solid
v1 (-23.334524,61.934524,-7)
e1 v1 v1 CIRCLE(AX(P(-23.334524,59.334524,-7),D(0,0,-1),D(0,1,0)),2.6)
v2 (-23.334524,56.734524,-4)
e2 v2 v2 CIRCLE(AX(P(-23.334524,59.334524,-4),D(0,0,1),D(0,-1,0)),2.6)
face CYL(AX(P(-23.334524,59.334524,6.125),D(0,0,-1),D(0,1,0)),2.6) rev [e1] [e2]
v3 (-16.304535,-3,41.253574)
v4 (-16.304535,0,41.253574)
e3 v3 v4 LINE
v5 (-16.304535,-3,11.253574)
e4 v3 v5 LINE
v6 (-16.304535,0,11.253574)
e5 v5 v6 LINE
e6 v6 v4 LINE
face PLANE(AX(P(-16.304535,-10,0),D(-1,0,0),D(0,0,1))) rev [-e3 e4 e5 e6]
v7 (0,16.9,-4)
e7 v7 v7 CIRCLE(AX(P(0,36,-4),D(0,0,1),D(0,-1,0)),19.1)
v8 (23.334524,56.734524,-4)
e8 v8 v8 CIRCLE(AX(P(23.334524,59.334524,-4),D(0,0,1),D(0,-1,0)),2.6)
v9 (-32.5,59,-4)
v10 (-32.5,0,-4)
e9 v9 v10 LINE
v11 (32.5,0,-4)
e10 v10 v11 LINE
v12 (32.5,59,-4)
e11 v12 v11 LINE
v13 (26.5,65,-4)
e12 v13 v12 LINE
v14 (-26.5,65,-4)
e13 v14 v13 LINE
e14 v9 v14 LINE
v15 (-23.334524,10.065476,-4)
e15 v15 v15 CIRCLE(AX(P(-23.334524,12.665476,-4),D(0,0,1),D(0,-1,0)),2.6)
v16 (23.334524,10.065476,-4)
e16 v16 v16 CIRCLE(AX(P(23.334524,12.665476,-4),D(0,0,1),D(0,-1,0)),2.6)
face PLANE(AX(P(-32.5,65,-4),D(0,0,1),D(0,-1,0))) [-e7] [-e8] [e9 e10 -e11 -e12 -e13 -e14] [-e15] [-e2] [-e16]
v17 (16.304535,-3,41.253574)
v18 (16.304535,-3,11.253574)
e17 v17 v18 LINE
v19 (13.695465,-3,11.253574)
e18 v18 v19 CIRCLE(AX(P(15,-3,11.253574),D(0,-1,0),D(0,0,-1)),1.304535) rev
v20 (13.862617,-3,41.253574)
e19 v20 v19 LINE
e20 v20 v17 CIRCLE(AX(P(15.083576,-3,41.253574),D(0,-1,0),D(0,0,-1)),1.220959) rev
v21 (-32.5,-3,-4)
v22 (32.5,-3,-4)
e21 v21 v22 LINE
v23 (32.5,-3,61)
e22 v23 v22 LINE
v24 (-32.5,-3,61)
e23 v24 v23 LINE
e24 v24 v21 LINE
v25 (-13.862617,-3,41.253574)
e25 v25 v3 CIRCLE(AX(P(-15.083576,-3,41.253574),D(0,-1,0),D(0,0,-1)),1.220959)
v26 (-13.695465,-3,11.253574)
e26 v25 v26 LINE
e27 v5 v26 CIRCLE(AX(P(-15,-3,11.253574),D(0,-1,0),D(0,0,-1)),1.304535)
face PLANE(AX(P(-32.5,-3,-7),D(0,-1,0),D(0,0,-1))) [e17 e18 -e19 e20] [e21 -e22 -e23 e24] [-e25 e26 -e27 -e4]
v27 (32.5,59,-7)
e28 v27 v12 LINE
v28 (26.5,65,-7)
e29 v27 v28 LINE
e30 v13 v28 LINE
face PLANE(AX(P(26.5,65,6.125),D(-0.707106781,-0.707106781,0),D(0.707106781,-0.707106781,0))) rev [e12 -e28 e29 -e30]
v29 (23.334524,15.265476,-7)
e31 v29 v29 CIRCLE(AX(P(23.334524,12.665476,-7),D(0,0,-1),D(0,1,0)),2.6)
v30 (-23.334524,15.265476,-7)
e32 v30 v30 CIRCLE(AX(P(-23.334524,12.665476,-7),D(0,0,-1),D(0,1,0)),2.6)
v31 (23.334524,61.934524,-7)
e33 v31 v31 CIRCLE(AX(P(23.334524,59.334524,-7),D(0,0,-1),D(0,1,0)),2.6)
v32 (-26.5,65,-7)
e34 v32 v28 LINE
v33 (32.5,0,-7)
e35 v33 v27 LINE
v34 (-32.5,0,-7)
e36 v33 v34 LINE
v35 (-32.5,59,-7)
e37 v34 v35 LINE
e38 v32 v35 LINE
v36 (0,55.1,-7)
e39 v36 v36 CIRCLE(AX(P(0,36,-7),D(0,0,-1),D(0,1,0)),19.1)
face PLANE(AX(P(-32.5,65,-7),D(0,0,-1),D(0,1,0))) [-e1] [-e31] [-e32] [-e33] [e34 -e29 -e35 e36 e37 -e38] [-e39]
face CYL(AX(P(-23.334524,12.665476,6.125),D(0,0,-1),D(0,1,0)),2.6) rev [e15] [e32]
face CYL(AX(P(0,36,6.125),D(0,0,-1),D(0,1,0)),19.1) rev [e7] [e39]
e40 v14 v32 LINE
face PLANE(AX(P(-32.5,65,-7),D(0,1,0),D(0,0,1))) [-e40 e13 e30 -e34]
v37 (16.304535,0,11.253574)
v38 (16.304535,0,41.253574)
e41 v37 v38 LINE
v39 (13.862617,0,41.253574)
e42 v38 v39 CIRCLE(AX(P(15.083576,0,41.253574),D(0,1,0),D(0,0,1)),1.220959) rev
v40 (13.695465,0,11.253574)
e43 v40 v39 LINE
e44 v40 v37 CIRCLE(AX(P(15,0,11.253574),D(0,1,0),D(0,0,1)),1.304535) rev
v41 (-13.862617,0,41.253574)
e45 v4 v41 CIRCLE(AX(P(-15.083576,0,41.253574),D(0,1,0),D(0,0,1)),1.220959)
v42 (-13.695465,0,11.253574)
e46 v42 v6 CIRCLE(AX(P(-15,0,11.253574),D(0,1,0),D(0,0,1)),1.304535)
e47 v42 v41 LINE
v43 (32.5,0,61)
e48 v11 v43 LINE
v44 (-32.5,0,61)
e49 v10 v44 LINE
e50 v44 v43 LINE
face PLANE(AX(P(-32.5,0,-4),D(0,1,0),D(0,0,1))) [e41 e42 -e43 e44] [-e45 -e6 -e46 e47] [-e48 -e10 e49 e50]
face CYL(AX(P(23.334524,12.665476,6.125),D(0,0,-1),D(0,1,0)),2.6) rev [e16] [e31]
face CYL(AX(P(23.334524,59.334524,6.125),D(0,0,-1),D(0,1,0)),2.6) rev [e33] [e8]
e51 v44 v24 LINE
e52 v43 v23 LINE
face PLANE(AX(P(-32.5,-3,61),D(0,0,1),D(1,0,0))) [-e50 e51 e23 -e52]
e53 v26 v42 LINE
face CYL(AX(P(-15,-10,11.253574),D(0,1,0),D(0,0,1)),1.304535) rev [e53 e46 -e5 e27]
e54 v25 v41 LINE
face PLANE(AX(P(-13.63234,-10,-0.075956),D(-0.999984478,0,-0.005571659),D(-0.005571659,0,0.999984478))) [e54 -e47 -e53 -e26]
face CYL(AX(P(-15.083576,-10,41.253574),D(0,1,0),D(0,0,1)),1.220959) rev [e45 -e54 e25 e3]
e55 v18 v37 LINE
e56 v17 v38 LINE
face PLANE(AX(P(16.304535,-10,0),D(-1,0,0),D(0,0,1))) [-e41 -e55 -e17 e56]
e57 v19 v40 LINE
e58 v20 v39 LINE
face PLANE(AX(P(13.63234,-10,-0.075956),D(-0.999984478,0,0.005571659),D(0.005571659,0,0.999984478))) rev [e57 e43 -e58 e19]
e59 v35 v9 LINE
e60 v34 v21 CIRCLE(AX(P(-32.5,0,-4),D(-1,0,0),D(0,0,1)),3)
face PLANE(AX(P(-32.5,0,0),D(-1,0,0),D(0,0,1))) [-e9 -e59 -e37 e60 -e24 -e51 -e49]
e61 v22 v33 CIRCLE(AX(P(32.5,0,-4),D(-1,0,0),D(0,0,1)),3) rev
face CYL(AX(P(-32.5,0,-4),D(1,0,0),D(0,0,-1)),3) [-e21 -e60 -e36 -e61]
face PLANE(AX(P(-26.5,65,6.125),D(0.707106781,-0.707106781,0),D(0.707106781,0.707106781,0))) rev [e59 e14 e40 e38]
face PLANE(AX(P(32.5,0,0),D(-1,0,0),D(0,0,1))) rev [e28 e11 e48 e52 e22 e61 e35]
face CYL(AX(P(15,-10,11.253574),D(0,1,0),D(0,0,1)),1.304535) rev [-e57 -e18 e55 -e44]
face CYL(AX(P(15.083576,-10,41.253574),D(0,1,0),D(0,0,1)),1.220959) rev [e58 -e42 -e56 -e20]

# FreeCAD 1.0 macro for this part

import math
import FreeCAD as App
import Part
import Sketcher
from FreeCAD import Vector
Q = App.Units.Quantity


def edges_at(feature, points):
    """Names of the edges that pass closest to the given points."""
    edges = feature.Shape.Edges
    near = lambda p: min(range(len(edges)), key=lambda i: edges[i].distToShape(Part.Vertex(*p))[0])
    return sorted({f"Edge{near(p) + 1}" for p in points})


def add_polygon(sketch, points):
    """Adds a closed chain of lines whose ends are joined by coincident constraints."""
    first, n = sketch.GeometryCount, len(points)
    for a, b in zip(points, points[1:] + points[:1]):
        sketch.addGeometry(Part.LineSegment(App.Vector(*a, 0), App.Vector(*b, 0)), False)
    for i in range(n):
        sketch.addConstraint(Sketcher.Constraint("Coincident", first + i, 2, first + (i + 1) % n, 1))

doc = App.newDocument("Part")
params = doc.addObject("Spreadsheet::Sheet", "Params")
for row, (alias, value) in enumerate([
    ("sketch1_width", "68 mm"),
    ("sketch1_width2", "65 mm"),
    ("pad1_length", "32.5 mm"),
    ("pad1_length2", "32.5 mm"),
    ("fillet_radius", "3 mm"),
    ("sketch2_diameter", "38.2 mm"),
    ("sketch2_diameter2", "5.2 mm"),
    ("sketch2_width", "6 mm"),
    ("pocket1_length", "13.125 mm"),
    ("sketch3_height", "30 mm"),
    ("pocket2_length", "10 mm"),
], start=1):
    params.set(f"A{row}", alias)
    params.set(f"B{row}", "=" + value)
    params.setAlias(f"B{row}", alias)

body = doc.addObject("PartDesign::Body", "Body")

sketch1 = body.newObject("Sketcher::SketchObject", "Sketch")
sketch1.AttachmentSupport = (doc.getObject("YZ_Plane"), [""])
sketch1.MapMode = "FlatFace"
add_polygon(sketch1, [(-3, -7), (65, -7), (65, -4), (0, -4), (0, 61), (-3, 61)])
sketch1.addConstraint([
    Sketcher.Constraint("Horizontal", 0),
    Sketcher.Constraint("Vertical", 1),
    Sketcher.Constraint("Horizontal", 2),
    Sketcher.Constraint("Vertical", 3),
    Sketcher.Constraint("Horizontal", 4),
    Sketcher.Constraint("Vertical", 5),
    Sketcher.Constraint("PointOnObject", 2, 2, -2),
    Sketcher.Constraint("Equal", 4, 1),
    Sketcher.Constraint("Equal", 2, 3),
    Sketcher.Constraint("DistanceX", 0, 1, 0, 2, Q("68 mm")),
    Sketcher.Constraint("DistanceX", 2, 2, 2, 1, Q("65 mm")),
    Sketcher.Constraint("DistanceY", 0, 2, -1, 1, Q("7 mm")),
])
sketch1.setExpression("Constraints[15]", "Params.sketch1_width")
sketch1.setExpression("Constraints[16]", "Params.sketch1_width2")
pad1 = body.newObject("PartDesign::Pad", "Pad")
pad1.Profile = sketch1
pad1.Type = "TwoLengths"
pad1.setExpression("Length", "Params.pad1_length")
pad1.setExpression("Length2", "Params.pad1_length2")
doc.recompute()

fillet = body.newObject("PartDesign::Fillet", "Fillet")
fillet.Base = (pad1, edges_at(pad1, [(0, -3, -7)]))
fillet.setExpression("Radius", "Params.fillet_radius")

sketch2 = body.newObject("Sketcher::SketchObject", "Sketch001")
sketch2.AttachmentSupport = (doc.getObject("XY_Plane"), [""])
sketch2.MapMode = "FlatFace"
sketch2.AttachmentOffset = App.Placement(Vector(0, 0, -7), App.Rotation())
sketch2.addGeometry(Part.Circle(Vector(0, 36, 0), Vector(0, 0, 1), 19.1), False)
sketch2.addGeometry(Part.Circle(Vector(23.334524, 59.334524, 0), Vector(0, 0, 1), 2.6), False)
sketch2.addGeometry(Part.Circle(Vector(-23.334524, 59.334524, 0), Vector(0, 0, 1), 2.6), False)
sketch2.addGeometry(Part.Circle(Vector(-23.334524, 12.665476, 0), Vector(0, 0, 1), 2.6), False)
sketch2.addGeometry(Part.Circle(Vector(23.334524, 12.665476, 0), Vector(0, 0, 1), 2.6), False)
add_polygon(sketch2, [(32.5, 59), (26.5, 65), (32.5, 65)])
add_polygon(sketch2, [(-32.5, 59), (-32.5, 65), (-26.5, 65)])
sketch2.addConstraint([
    Sketcher.Constraint("Horizontal", 6),
    Sketcher.Constraint("Vertical", 7),
    Sketcher.Constraint("Vertical", 8),
    Sketcher.Constraint("Horizontal", 9),
    Sketcher.Constraint("Equal", 1, 2),
    Sketcher.Constraint("Equal", 2, 3),
    Sketcher.Constraint("Equal", 3, 4),
    Sketcher.Constraint("Symmetric", 1, 3, 2, 3, -2),
    Sketcher.Constraint("Symmetric", 3, 3, 4, 3, -2),
    Sketcher.Constraint("Symmetric", 6, 2, 8, 2, -2),
    Sketcher.Constraint("PointOnObject", 0, 3, -2),
    Sketcher.Constraint("Perpendicular", 5, 10),
    Sketcher.Constraint("Horizontal", 7, 2, 10, 2),
    Sketcher.Constraint("Vertical", 2, 3, 3, 3),
    Sketcher.Constraint("Equal", 6, 9),
    Sketcher.Constraint("Diameter", 0, Q("38.2 mm")),
    Sketcher.Constraint("Diameter", 1, Q("5.2 mm")),
    Sketcher.Constraint("DistanceX", 6, 1, 6, 2, Q("6 mm")),
    Sketcher.Constraint("DistanceY", -1, 1, 0, 3, Q("36 mm")),
    Sketcher.Constraint("DistanceY", -1, 1, 5, 2, Q("65 mm")),
    Sketcher.Constraint("DistanceX", 8, 2, 5, 2, Q("59 mm")),
    Sketcher.Constraint("DistanceX", -1, 1, 1, 3, Q("23.334524 mm")),
    Sketcher.Constraint("DistanceY", -1, 1, 1, 3, Q("59.334524 mm")),
    Sketcher.Constraint("DistanceY", -1, 1, 3, 3, Q("12.665476 mm")),
])
sketch2.setExpression("Constraints[21]", "Params.sketch2_diameter")
sketch2.setExpression("Constraints[22]", "Params.sketch2_diameter2")
sketch2.setExpression("Constraints[23]", "Params.sketch2_width")
pocket1 = body.newObject("PartDesign::Pocket", "Pocket")
pocket1.Profile = sketch2
pocket1.setExpression("Length", "Params.pocket1_length")
pocket1.Reversed = True

sketch3 = body.newObject("Sketcher::SketchObject", "Sketch002")
sketch3.AttachmentSupport = (doc.getObject("XZ_Plane"), [""])
sketch3.MapMode = "FlatFace"
sketch3.addGeometry([
    Part.ArcOfCircle(Part.Circle(Vector(-15, 11.253574, 0), Vector(0, 0, 1), 1.304535), math.radians(180), math.radians(360)),
    Part.LineSegment(Vector(-16.304535, 11.253574, 0), Vector(-16.304535, 41.253574, 0)),
    Part.ArcOfCircle(Part.Circle(Vector(-15.083576, 41.253574, 0), Vector(0, 0, 1), 1.220959), math.radians(0), math.radians(180)),
    Part.LineSegment(Vector(-13.862617, 41.253574, 0), Vector(-13.695546, 11.268111, 0)),
    Part.LineSegment(Vector(-13.695546, 11.268111, 0), Vector(-13.695465, 11.253574, 0)),
    Part.LineSegment(Vector(16.304535, 41.253574, 0), Vector(16.304535, 11.253574, 0)),
    Part.ArcOfCircle(Part.Circle(Vector(15, 11.253574, 0), Vector(0, 0, 1), 1.304535), math.radians(180), math.radians(360)),
    Part.LineSegment(Vector(13.695465, 11.253574, 0), Vector(13.695546, 11.268111, 0)),
    Part.LineSegment(Vector(13.695546, 11.268111, 0), Vector(13.862617, 41.253574, 0)),
    Part.ArcOfCircle(Part.Circle(Vector(15.083576, 41.253574, 0), Vector(0, 0, 1), 1.220959), math.radians(0), math.radians(180)),
], False)
sketch3.addConstraint([
    Sketcher.Constraint("Tangent", 0, 1, 1, 1),
    Sketcher.Constraint("Tangent", 1, 2, 2, 2),
    Sketcher.Constraint("Coincident", 2, 1, 3, 1),
    Sketcher.Constraint("Coincident", 3, 2, 4, 1),
    Sketcher.Constraint("Coincident", 4, 2, 0, 2),
    Sketcher.Constraint("Tangent", 5, 2, 6, 2),
    Sketcher.Constraint("Coincident", 6, 1, 7, 1),
    Sketcher.Constraint("Coincident", 7, 2, 8, 1),
    Sketcher.Constraint("Coincident", 8, 2, 9, 2),
    Sketcher.Constraint("Tangent", 9, 1, 5, 1),
    Sketcher.Constraint("Vertical", 1),
    Sketcher.Constraint("Vertical", 5),
    Sketcher.Constraint("Equal", 0, 6),
    Sketcher.Constraint("Equal", 2, 9),
    Sketcher.Constraint("Symmetric", 0, 3, 6, 3, -2),
    Sketcher.Constraint("Symmetric", 3, 2, 7, 2, -2),
    Sketcher.Constraint("Parallel", 3, 4),
    Sketcher.Constraint("Parallel", 7, 8),
    Sketcher.Constraint("Horizontal", 2, 3, 9, 3),
    Sketcher.Constraint("Horizontal", 1, 2, 2, 1),
    Sketcher.Constraint("Horizontal", 0, 1, 4, 2),
    Sketcher.Constraint("Horizontal", 2, 1, 8, 2),
    Sketcher.Constraint("DistanceY", 1, 1, 1, 2, Q("30 mm")),
    Sketcher.Constraint("DistanceX", 0, 3, -1, 1, Q("15 mm")),
    Sketcher.Constraint("Radius", 2, Q("1.220959 mm")),
    Sketcher.Constraint("Radius", 0, Q("1.304535 mm")),
    Sketcher.Constraint("Distance", 3, Q("29.985929 mm")),
    Sketcher.Constraint("DistanceY", -1, 1, 3, 2, Q("11.268111 mm")),
])
sketch3.setExpression("Constraints[22]", "Params.sketch3_height")
pocket2 = body.newObject("PartDesign::Pocket", "Pocket001")
pocket2.Profile = sketch3
pocket2.setExpression("Length", "Params.pocket2_length")
pocket2.Reversed = True

doc.recompute()
